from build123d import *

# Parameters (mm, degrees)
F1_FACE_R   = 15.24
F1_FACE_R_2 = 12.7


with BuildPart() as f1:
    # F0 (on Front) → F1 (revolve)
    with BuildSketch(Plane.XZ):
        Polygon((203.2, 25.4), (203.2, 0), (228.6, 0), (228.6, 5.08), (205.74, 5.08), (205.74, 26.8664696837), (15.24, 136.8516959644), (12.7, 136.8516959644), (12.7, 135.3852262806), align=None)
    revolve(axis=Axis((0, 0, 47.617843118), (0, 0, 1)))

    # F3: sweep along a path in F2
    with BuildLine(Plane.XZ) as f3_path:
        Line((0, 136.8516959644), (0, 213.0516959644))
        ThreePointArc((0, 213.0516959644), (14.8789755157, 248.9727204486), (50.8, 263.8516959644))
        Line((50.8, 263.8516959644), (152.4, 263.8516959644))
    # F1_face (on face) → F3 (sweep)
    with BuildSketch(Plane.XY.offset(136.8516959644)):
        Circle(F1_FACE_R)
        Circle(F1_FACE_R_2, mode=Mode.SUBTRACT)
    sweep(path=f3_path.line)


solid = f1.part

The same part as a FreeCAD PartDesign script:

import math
import FreeCAD as App
import Part
import Sketcher
Q = App.Units.Quantity

doc = App.newDocument("Part")
body = doc.addObject("PartDesign::Body", "Body")

sketch1 = body.newObject("Sketcher::SketchObject", "Sketch")
sketch1.AttachmentSupport = (doc.getObject("XZ_Plane"), [""])
sketch1.MapMode = "FlatFace"
sketch1.addGeometry([
    Part.LineSegment(App.Vector(203.2, 25.4, 0), App.Vector(203.2, 0, 0)),
    Part.LineSegment(App.Vector(203.2, 0, 0), App.Vector(228.6, 0, 0)),
    Part.LineSegment(App.Vector(228.6, 0, 0), App.Vector(228.6, 5.08, 0)),
    Part.LineSegment(App.Vector(228.6, 5.08, 0), App.Vector(205.74, 5.08, 0)),
    Part.LineSegment(App.Vector(205.74, 5.08, 0), App.Vector(205.74, 26.86647, 0)),
    Part.LineSegment(App.Vector(205.74, 26.86647, 0), App.Vector(15.24, 136.851696, 0)),
    Part.LineSegment(App.Vector(15.24, 136.851696, 0), App.Vector(12.7, 136.851696, 0)),
    Part.LineSegment(App.Vector(12.7, 136.851696, 0), App.Vector(12.7, 135.385226, 0)),
    Part.LineSegment(App.Vector(12.7, 135.385226, 0), App.Vector(203.2, 25.4, 0)),
], False)
sketch1.addConstraint([
    Sketcher.Constraint("Coincident", 0, 2, 1, 1),
    Sketcher.Constraint("Coincident", 1, 2, 2, 1),
    Sketcher.Constraint("Coincident", 2, 2, 3, 1),
    Sketcher.Constraint("Coincident", 3, 2, 4, 1),
    Sketcher.Constraint("Coincident", 4, 2, 5, 1),
    Sketcher.Constraint("Coincident", 5, 2, 6, 1),
    Sketcher.Constraint("Coincident", 6, 2, 7, 1),
    Sketcher.Constraint("Coincident", 7, 2, 8, 1),
    Sketcher.Constraint("Coincident", 8, 2, 0, 1),
    Sketcher.Constraint("Vertical", 0),
    Sketcher.Constraint("Horizontal", 1),
    Sketcher.Constraint("Vertical", 2),
    Sketcher.Constraint("Horizontal", 3),
    Sketcher.Constraint("Vertical", 4),
    Sketcher.Constraint("Horizontal", 6),
    Sketcher.Constraint("Vertical", 7),
    Sketcher.Constraint("PointOnObject", 0, 2, -1),
    Sketcher.Constraint("Parallel", 5, 8),
    Sketcher.Constraint("Equal", 1, 0),
    Sketcher.Constraint("Equal", 5, 8),
    Sketcher.Constraint("DistanceX", 1, 1, 1, 2, Q("1 in")),
    Sketcher.Constraint("DistanceX", 3, 2, 3, 1, Q("0.9 in")),
    Sketcher.Constraint("DistanceY", 2, 1, 2, 2, Q("0.2 in")),
    Sketcher.Constraint("DistanceX", -1, 1, 0, 2, Q("8 in")),
    Sketcher.Constraint("Angle", 5, Q("150 deg")),
    Sketcher.Constraint("DistanceX", -1, 1, 5, 2, Q("0.6 in")),
    Sketcher.Constraint("DistanceY", 4, 1, 4, 2, Q("21.78647 mm")),
])
revolution = body.newObject("PartDesign::Revolution", "Revolution")
revolution.Profile = sketch1
revolution.ReferenceAxis = (sketch1, ["V_Axis"])
revolution.Angle = 360

sketch2 = body.newObject("Sketcher::SketchObject", "Sketch001")
sketch2.AttachmentSupport = (doc.getObject("XY_Plane"), [""])
sketch2.MapMode = "FlatFace"
sketch2.AttachmentOffset = App.Placement(App.Vector(0, 0, 136.851696), App.Rotation())
sketch2.addGeometry([
    Part.Circle(App.Vector(0, 0, 0), App.Vector(0, 0, 1), 15.24),
    Part.Circle(App.Vector(0, 0, 0), App.Vector(0, 0, 1), 12.7),
], False)
sketch2.addConstraint([
    Sketcher.Constraint("Coincident", 0, 3, -1, 1),
    Sketcher.Constraint("Coincident", 1, 3, -1, 1),
    Sketcher.Constraint("Diameter", 1, Q("1 in")),
    Sketcher.Constraint("Diameter", 0, Q("1.2 in")),
])

sketch3 = body.newObject("Sketcher::SketchObject", "Sketch002")
sketch3.AttachmentSupport = (doc.getObject("XZ_Plane"), [""])
sketch3.MapMode = "FlatFace"
sketch3.addGeometry([
    Part.LineSegment(App.Vector(0, 136.851696, 0), App.Vector(0, 213.051696, 0)),
    Part.ArcOfCircle(Part.Circle(App.Vector(50.8, 213.051696, 0), App.Vector(0, 0, 1), 50.8), math.radians(90), math.radians(180)),
    Part.LineSegment(App.Vector(50.8, 263.851696, 0), App.Vector(152.4, 263.851696, 0)),
], False)
sketch3.addConstraint([
    Sketcher.Constraint("Tangent", 0, 2, 1, 2),
    Sketcher.Constraint("Tangent", 1, 1, 2, 1),
    Sketcher.Constraint("Vertical", 0),
    Sketcher.Constraint("Horizontal", 2),
    Sketcher.Constraint("PointOnObject", 0, 1, -2),
    Sketcher.Constraint("Radius", 1, Q("2 in")),
    Sketcher.Constraint("DistanceX", 2, 1, 2, 2, Q("4 in")),
    Sketcher.Constraint("DistanceY", 0, 1, 0, 2, Q("3 in")),
    Sketcher.Constraint("DistanceY", -1, 1, 1, 3, Q("213.051696 mm")),
])
doc.recompute()

additivepipe = body.newObject("PartDesign::AdditivePipe", "AdditivePipe")
additivepipe.Profile = sketch2
additivepipe.Spine = (sketch3, ["Edge1", "Edge2", "Edge3"])

doc.recompute()
